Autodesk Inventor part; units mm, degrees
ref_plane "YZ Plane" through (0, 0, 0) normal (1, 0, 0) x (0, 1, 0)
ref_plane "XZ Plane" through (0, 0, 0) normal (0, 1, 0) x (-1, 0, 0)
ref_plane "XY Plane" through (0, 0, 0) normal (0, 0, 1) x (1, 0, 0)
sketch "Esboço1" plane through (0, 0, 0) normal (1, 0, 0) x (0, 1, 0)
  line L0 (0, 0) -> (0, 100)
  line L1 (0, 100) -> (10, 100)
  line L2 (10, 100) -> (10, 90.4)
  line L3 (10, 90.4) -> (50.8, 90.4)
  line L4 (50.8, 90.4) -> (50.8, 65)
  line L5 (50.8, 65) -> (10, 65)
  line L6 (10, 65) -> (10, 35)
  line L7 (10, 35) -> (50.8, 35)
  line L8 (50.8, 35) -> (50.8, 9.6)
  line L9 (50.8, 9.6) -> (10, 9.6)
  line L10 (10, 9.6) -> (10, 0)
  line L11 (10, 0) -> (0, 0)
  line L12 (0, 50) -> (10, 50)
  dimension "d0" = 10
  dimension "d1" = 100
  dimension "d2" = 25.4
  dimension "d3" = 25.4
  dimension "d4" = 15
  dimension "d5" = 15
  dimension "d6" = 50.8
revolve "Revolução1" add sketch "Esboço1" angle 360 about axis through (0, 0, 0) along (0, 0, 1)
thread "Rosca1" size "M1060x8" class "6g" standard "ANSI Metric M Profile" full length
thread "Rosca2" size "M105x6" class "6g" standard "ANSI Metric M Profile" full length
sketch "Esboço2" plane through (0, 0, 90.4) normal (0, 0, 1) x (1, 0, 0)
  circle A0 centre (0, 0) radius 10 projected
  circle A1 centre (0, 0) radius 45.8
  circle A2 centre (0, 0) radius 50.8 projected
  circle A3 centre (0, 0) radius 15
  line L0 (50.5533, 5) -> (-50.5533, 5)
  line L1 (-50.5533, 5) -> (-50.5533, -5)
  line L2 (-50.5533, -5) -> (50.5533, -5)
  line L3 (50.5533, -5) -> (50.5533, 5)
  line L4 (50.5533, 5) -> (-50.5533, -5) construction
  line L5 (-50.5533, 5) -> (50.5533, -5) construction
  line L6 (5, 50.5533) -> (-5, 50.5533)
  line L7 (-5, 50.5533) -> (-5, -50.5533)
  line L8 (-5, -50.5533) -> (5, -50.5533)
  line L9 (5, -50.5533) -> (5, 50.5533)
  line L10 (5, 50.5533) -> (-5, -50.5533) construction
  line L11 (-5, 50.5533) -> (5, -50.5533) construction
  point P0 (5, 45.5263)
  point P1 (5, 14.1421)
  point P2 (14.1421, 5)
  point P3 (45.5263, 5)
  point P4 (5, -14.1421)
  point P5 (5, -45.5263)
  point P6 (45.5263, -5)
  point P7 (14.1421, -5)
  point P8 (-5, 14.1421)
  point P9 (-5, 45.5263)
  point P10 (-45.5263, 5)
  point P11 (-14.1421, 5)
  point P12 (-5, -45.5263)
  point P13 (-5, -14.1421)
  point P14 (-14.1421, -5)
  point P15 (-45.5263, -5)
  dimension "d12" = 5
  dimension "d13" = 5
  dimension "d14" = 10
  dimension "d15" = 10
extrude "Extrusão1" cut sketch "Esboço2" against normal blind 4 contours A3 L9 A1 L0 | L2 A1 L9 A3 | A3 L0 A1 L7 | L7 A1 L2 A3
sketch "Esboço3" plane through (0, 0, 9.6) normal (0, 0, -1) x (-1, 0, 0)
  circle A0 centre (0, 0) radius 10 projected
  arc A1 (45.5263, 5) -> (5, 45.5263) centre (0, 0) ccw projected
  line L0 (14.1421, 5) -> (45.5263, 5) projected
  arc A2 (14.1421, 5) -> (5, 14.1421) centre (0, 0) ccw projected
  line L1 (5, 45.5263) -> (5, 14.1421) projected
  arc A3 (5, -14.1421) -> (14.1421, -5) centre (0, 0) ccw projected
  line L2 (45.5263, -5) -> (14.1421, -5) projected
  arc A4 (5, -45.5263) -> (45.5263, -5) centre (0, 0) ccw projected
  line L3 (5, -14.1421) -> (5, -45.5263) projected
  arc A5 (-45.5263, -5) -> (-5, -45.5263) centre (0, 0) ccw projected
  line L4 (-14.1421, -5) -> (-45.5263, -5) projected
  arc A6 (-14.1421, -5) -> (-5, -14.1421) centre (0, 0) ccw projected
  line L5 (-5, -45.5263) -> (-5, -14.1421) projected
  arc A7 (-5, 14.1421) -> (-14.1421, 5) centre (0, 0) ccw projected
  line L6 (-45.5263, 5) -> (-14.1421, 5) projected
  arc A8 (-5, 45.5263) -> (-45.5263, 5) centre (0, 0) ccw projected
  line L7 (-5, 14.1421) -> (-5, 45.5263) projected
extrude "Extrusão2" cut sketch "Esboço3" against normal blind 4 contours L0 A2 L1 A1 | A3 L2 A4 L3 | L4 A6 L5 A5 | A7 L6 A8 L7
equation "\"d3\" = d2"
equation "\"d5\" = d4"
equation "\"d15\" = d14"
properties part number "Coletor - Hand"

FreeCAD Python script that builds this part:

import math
import FreeCAD as App
import Part
import Sketcher
Q = App.Units.Quantity


def add_polygon(sketch, points):
    """Adds a closed chain of lines whose ends are joined by coincident constraints."""
    first, n = sketch.GeometryCount, len(points)
    for a, b in zip(points, points[1:] + points[:1]):
        sketch.addGeometry(Part.LineSegment(App.Vector(*a, 0), App.Vector(*b, 0)), False)
    for i in range(n):
        sketch.addConstraint(Sketcher.Constraint("Coincident", first + i, 2, first + (i + 1) % n, 1))

doc = App.newDocument("Part")
body = doc.addObject("PartDesign::Body", "Body")

# Sketch on YZ plane
sketch1 = doc.addObject("Sketcher::SketchObject", "Sketch")
body.addObject(sketch1)
sketch1.AttachmentSupport = (doc.YZ_Plane, [""])
sketch1.MapMode = "FlatFace"
add_polygon(sketch1, [(0, 0), (10, 0), (10, 10), (51, 10), (51, 35), (10, 35), (10, 65), (51, 65), (51, 90), (10, 90), (10, 100), (0, 100)])  # lines 0-11
sketch1.addConstraint([
    Sketcher.Constraint("Horizontal", 0),
    Sketcher.Constraint("Vertical", 1),
    Sketcher.Constraint("Horizontal", 2),
    Sketcher.Constraint("Vertical", 3),
    Sketcher.Constraint("Horizontal", 4),
    Sketcher.Constraint("Vertical", 5),
    Sketcher.Constraint("Horizontal", 6),
    Sketcher.Constraint("Vertical", 7),
    Sketcher.Constraint("Horizontal", 8),
    Sketcher.Constraint("Vertical", 9),
    Sketcher.Constraint("Horizontal", 10),
    Sketcher.Constraint("Vertical", 11),
    Sketcher.Constraint("Coincident", 11, 2, -1, 1),
    Sketcher.Constraint("Vertical", 1, 2, 4, 2),
    Sketcher.Constraint("Vertical", 3, 2, 6, 2),
    Sketcher.Constraint("Vertical", 5, 2, 8, 2),
    Sketcher.Constraint("Equal", 3, 7),
    Sketcher.Constraint("Equal", 1, 9),
    Sketcher.Constraint("DistanceX", 0, 1, 0, 2, Q("10 mm")),
    Sketcher.Constraint("DistanceY", 11, 2, 11, 1, Q("100 mm")),
    Sketcher.Constraint("DistanceY", 3, 1, 3, 2, Q("25.4 mm")),
    Sketcher.Constraint("DistanceX", -1, 1, 2, 2, Q("50.8 mm")),
    Sketcher.Constraint("DistanceY", 5, 1, 5, 2, Q("30 mm")),
])
revolution = doc.addObject("PartDesign::Revolution", "Revolution")
body.addObject(revolution)
revolution.Profile = sketch1
revolution.ReferenceAxis = (sketch1, ["V_Axis"])
revolution.Angle = 360

# Sketch on XY plane
sketch2 = doc.addObject("Sketcher::SketchObject", "Sketch001")
body.addObject(sketch2)
sketch2.AttachmentSupport = (doc.XY_Plane, [""])
sketch2.MapMode = "FlatFace"
sketch2.AttachmentOffset = App.Placement(App.Vector(0, 0, 90.4), App.Rotation())
sketch2.addGeometry([
    Part.ArcOfCircle(Part.Circle(App.Vector(0, 0, 0), App.Vector(0, 0, 1), 15), math.radians(19), math.radians(71)),  # 0
    Part.LineSegment(App.Vector(14, 5, 0), App.Vector(46, 5, 0)),  # 1
    Part.ArcOfCircle(Part.Circle(App.Vector(0, 0, 0), App.Vector(0, 0, 1), 46), math.radians(6), math.radians(84)),  # 2
    Part.LineSegment(App.Vector(5, 46, 0), App.Vector(5, 14, 0)),  # 3
    Part.LineSegment(App.Vector(46, -5, 0), App.Vector(14, -5, 0)),  # 4
    Part.ArcOfCircle(Part.Circle(App.Vector(0, 0, 0), App.Vector(0, 0, 1), 15), math.radians(-71), math.radians(-19)),  # 5
    Part.LineSegment(App.Vector(5, -14, 0), App.Vector(5, -46, 0)),  # 6
    Part.ArcOfCircle(Part.Circle(App.Vector(0, 0, 0), App.Vector(0, 0, 1), 46), math.radians(-84), math.radians(-6)),  # 7
    Part.ArcOfCircle(Part.Circle(App.Vector(0, 0, 0), App.Vector(0, 0, 1), 15), math.radians(109), math.radians(161)),  # 8
    Part.LineSegment(App.Vector(-5, 14, 0), App.Vector(-5, 46, 0)),  # 9
    Part.ArcOfCircle(Part.Circle(App.Vector(0, 0, 0), App.Vector(0, 0, 1), 46), math.radians(96), math.radians(174)),  # 10
    Part.LineSegment(App.Vector(-46, 5, 0), App.Vector(-14, 5, 0)),  # 11
    Part.LineSegment(App.Vector(-5, -46, 0), App.Vector(-5, -14, 0)),  # 12
    Part.ArcOfCircle(Part.Circle(App.Vector(0, 0, 0), App.Vector(0, 0, 1), 15), math.radians(-161), math.radians(-109)),  # 13
    Part.LineSegment(App.Vector(-14, -5, 0), App.Vector(-46, -5, 0)),  # 14
    Part.ArcOfCircle(Part.Circle(App.Vector(0, 0, 0), App.Vector(0, 0, 1), 46), math.radians(-174), math.radians(-96)),  # 15
], False)
sketch2.addConstraint([
    Sketcher.Constraint("Coincident", 0, 1, 1, 1),
    Sketcher.Constraint("Coincident", 1, 2, 2, 1),
    Sketcher.Constraint("Coincident", 2, 2, 3, 1),
    Sketcher.Constraint("Coincident", 3, 2, 0, 2),
    Sketcher.Constraint("Coincident", 4, 2, 5, 2),
    Sketcher.Constraint("Coincident", 5, 1, 6, 1),
    Sketcher.Constraint("Coincident", 6, 2, 7, 1),
    Sketcher.Constraint("Coincident", 7, 2, 4, 1),
    Sketcher.Constraint("Coincident", 8, 1, 9, 1),
    Sketcher.Constraint("Coincident", 9, 2, 10, 1),
    Sketcher.Constraint("Coincident", 10, 2, 11, 1),
    Sketcher.Constraint("Coincident", 11, 2, 8, 2),
    Sketcher.Constraint("Coincident", 12, 2, 13, 2),
    Sketcher.Constraint("Coincident", 13, 1, 14, 1),
    Sketcher.Constraint("Coincident", 14, 2, 15, 1),
    Sketcher.Constraint("Coincident", 15, 2, 12, 1),
    Sketcher.Constraint("Horizontal", 1),
    Sketcher.Constraint("Vertical", 3),
    Sketcher.Constraint("Horizontal", 4),
    Sketcher.Constraint("Vertical", 6),
    Sketcher.Constraint("Vertical", 9),
    Sketcher.Constraint("Horizontal", 11),
    Sketcher.Constraint("Vertical", 12),
    Sketcher.Constraint("Horizontal", 14),
    Sketcher.Constraint("Coincident", 0, 3, -1, 1),
    Sketcher.Constraint("Coincident", 2, 3, -1, 1),
    Sketcher.Constraint("Coincident", 5, 3, -1, 1),
    Sketcher.Constraint("Coincident", 7, 3, -1, 1),
    Sketcher.Constraint("Coincident", 8, 3, -1, 1),
    Sketcher.Constraint("Coincident", 10, 3, -1, 1),
    Sketcher.Constraint("Coincident", 13, 3, -1, 1),
    Sketcher.Constraint("Coincident", 15, 3, -1, 1),
    Sketcher.Constraint("Equal", 0, 5),
    Sketcher.Constraint("Equal", 2, 7),
    Sketcher.Constraint("Equal", 5, 8),
    Sketcher.Constraint("Equal", 7, 10),
    Sketcher.Constraint("Equal", 8, 13),
    Sketcher.Constraint("Equal", 10, 15),
    Sketcher.Constraint("Horizontal", 3, 2, 8, 1),
    Sketcher.Constraint("Horizontal", 1, 2, 10, 2),
    Sketcher.Constraint("Horizontal", 5, 1, 12, 2),
    Sketcher.Constraint("Horizontal", 7, 2, 13, 1),
    Sketcher.Constraint("Vertical", 0, 1, 4, 2),
    Sketcher.Constraint("Vertical", 3, 2, 5, 1),
    Sketcher.Constraint("Equal", 14, 3),
    Sketcher.Constraint("DistanceY", -1, 1, 0, 1, Q("5 mm")),
    Sketcher.Constraint("Radius", 0, Q("15 mm")),
    Sketcher.Constraint("Radius", 2, Q("45.8 mm")),
])
pocket1 = doc.addObject("PartDesign::Pocket", "Pocket")
body.addObject(pocket1)
pocket1.Profile = sketch2
pocket1.Length = 4

# Sketch on XY plane
sketch3 = doc.addObject("Sketcher::SketchObject", "Sketch002")
body.addObject(sketch3)
sketch3.AttachmentSupport = (doc.XY_Plane, [""])
sketch3.MapMode = "FlatFace"
sketch3.AttachmentOffset = App.Placement(App.Vector(0, 0, 9.6), App.Rotation())
sketch3.addGeometry([
    Part.LineSegment(App.Vector(-14, 5, 0), App.Vector(-46, 5, 0)),  # 0
    Part.ArcOfCircle(Part.Circle(App.Vector(0, 0, 0), App.Vector(0, 0, 1), 46), math.radians(96), math.radians(174)),  # 1
    Part.LineSegment(App.Vector(-5, 46, 0), App.Vector(-5, 14, 0)),  # 2
    Part.ArcOfCircle(Part.Circle(App.Vector(0, 0, 0), App.Vector(0, 0, 1), 15), math.radians(109), math.radians(161)),  # 3
    Part.ArcOfCircle(Part.Circle(App.Vector(0, 0, 0), App.Vector(0, 0, 1), 15), math.radians(-161), math.radians(-109)),  # 4
    Part.LineSegment(App.Vector(-5, -14, 0), App.Vector(-5, -46, 0)),  # 5
    Part.ArcOfCircle(Part.Circle(App.Vector(0, 0, 0), App.Vector(0, 0, 1), 46), math.radians(-174), math.radians(-96)),  # 6
    Part.LineSegment(App.Vector(-46, -5, 0), App.Vector(-14, -5, 0)),  # 7
    Part.LineSegment(App.Vector(14, -5, 0), App.Vector(46, -5, 0)),  # 8
    Part.ArcOfCircle(Part.Circle(App.Vector(0, 0, 0), App.Vector(0, 0, 1), 46), math.radians(-84), math.radians(-6)),  # 9
    Part.LineSegment(App.Vector(5, -46, 0), App.Vector(5, -14, 0)),  # 10
    Part.ArcOfCircle(Part.Circle(App.Vector(0, 0, 0), App.Vector(0, 0, 1), 15), math.radians(-71), math.radians(-19)),  # 11
    Part.ArcOfCircle(Part.Circle(App.Vector(0, 0, 0), App.Vector(0, 0, 1), 15), math.radians(19), math.radians(71)),  # 12
    Part.LineSegment(App.Vector(5, 14, 0), App.Vector(5, 46, 0)),  # 13
    Part.ArcOfCircle(Part.Circle(App.Vector(0, 0, 0), App.Vector(0, 0, 1), 46), math.radians(6), math.radians(84)),  # 14
    Part.LineSegment(App.Vector(46, 5, 0), App.Vector(14, 5, 0)),  # 15
], False)
sketch3.addConstraint([
    Sketcher.Constraint("Coincident", 0, 2, 1, 2),
    Sketcher.Constraint("Coincident", 1, 1, 2, 1),
    Sketcher.Constraint("Coincident", 2, 2, 3, 1),
    Sketcher.Constraint("Coincident", 3, 2, 0, 1),
    Sketcher.Constraint("Coincident", 4, 2, 5, 1),
    Sketcher.Constraint("Coincident", 5, 2, 6, 2),
    Sketcher.Constraint("Coincident", 6, 1, 7, 1),
    Sketcher.Constraint("Coincident", 7, 2, 4, 1),
    Sketcher.Constraint("Coincident", 8, 2, 9, 2),
    Sketcher.Constraint("Coincident", 9, 1, 10, 1),
    Sketcher.Constraint("Coincident", 10, 2, 11, 1),
    Sketcher.Constraint("Coincident", 11, 2, 8, 1),
    Sketcher.Constraint("Coincident", 12, 2, 13, 1),
    Sketcher.Constraint("Coincident", 13, 2, 14, 2),
    Sketcher.Constraint("Coincident", 14, 1, 15, 1),
    Sketcher.Constraint("Coincident", 15, 2, 12, 1),
    Sketcher.Constraint("Horizontal", 0),
    Sketcher.Constraint("Vertical", 2),
    Sketcher.Constraint("Vertical", 5),
    Sketcher.Constraint("Horizontal", 7),
    Sketcher.Constraint("Horizontal", 8),
    Sketcher.Constraint("Vertical", 10),
    Sketcher.Constraint("Vertical", 13),
    Sketcher.Constraint("Horizontal", 15),
    Sketcher.Constraint("Coincident", 1, 3, -1, 1),
    Sketcher.Constraint("Coincident", 3, 3, -1, 1),
    Sketcher.Constraint("Coincident", 4, 3, -1, 1),
    Sketcher.Constraint("Coincident", 6, 3, -1, 1),
    Sketcher.Constraint("Coincident", 9, 3, -1, 1),
    Sketcher.Constraint("Coincident", 11, 3, -1, 1),
    Sketcher.Constraint("Coincident", 12, 3, -1, 1),
    Sketcher.Constraint("Coincident", 14, 3, -1, 1),
    Sketcher.Constraint("Equal", 3, 4),
    Sketcher.Constraint("Equal", 1, 6),
    Sketcher.Constraint("Equal", 6, 9),
    Sketcher.Constraint("Equal", 4, 11),
    Sketcher.Constraint("Equal", 11, 12),
    Sketcher.Constraint("Equal", 9, 14),
    Sketcher.Constraint("Horizontal", 7, 2, 8, 2),
    Sketcher.Constraint("Horizontal", 5, 2, 9, 1),
    Sketcher.Constraint("Horizontal", 2, 2, 12, 2),
    Sketcher.Constraint("Horizontal", 3, 2, 14, 1),
    Sketcher.Constraint("Vertical", 2, 2, 4, 2),
    Sketcher.Constraint("Vertical", 0, 2, 6, 1),
    Sketcher.Constraint("Equal", 15, 2),
    Sketcher.Constraint("Radius", 3, Q("15 mm")),
    Sketcher.Constraint("Radius", 1, Q("45.8 mm")),
    Sketcher.Constraint("DistanceY", -1, 1, 0, 2, Q("5 mm")),
])
pocket2 = doc.addObject("PartDesign::Pocket", "Pocket001")
body.addObject(pocket2)
pocket2.Profile = sketch3
pocket2.Length = 4
pocket2.Reversed = True

doc.recompute()
